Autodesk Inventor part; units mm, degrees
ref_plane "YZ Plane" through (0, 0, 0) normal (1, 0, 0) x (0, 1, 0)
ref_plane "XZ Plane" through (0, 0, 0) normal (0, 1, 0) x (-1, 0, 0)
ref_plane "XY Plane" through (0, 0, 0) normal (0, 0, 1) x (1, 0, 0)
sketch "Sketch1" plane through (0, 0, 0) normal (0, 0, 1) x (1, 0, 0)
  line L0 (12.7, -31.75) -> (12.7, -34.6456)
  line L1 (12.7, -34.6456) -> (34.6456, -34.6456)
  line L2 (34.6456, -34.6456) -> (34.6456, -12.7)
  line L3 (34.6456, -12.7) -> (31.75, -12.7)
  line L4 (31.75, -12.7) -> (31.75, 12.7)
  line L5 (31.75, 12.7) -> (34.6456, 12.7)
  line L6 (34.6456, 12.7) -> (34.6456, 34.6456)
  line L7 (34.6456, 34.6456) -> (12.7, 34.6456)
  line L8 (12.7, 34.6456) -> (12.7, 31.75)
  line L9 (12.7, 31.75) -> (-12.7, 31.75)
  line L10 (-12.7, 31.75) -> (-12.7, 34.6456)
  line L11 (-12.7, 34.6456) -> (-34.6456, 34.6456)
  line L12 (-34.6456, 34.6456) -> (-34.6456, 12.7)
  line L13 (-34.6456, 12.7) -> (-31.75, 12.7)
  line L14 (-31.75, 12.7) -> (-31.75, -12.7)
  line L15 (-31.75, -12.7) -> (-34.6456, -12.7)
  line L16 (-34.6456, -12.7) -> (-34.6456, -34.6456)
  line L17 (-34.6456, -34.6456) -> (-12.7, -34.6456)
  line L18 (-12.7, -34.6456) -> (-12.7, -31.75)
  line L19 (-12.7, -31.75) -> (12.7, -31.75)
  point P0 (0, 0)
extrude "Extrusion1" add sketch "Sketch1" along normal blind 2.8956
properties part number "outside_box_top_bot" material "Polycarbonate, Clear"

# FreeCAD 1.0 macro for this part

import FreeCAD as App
import Part
import Sketcher

V = App.Vector
Q = App.Units.Quantity


def add_polygon(sketch, points):
    """Adds a closed chain of lines whose ends are joined by coincident constraints."""
    first, n = sketch.GeometryCount, len(points)
    for a, b in zip(points, points[1:] + points[:1]):
        sketch.addGeometry(Part.LineSegment(App.Vector(*a, 0), App.Vector(*b, 0)), False)
    for i in range(n):
        sketch.addConstraint(Sketcher.Constraint("Coincident", first + i, 2, first + (i + 1) % n, 1))

doc = App.newDocument("Part")
body = doc.addObject("PartDesign::Body", "Body")

# Sketch on XY plane
sketch1 = doc.addObject("Sketcher::SketchObject", "Sketch")
body.addObject(sketch1)
sketch1.AttachmentSupport = (doc.XY_Plane, [""])
sketch1.MapMode = "FlatFace"
add_polygon(sketch1, [(-12.7, -31.75), (12.7, -31.75), (12.7, -34.6456), (34.6456, -34.6456), (34.6456, -12.7), (31.75, -12.7), (31.75, 12.7), (34.6456, 12.7), (34.6456, 34.6456), (12.7, 34.6456), (12.7, 31.75), (-12.7, 31.75), (-12.7, 34.6456), (-34.6456, 34.6456), (-34.6456, 12.7), (-31.75, 12.7), (-31.75, -12.7), (-34.6456, -12.7), (-34.6456, -34.6456), (-12.7, -34.6456)])  # lines 0-19
sketch1.addConstraint([
    Sketcher.Constraint("Horizontal", 0),
    Sketcher.Constraint("Vertical", 1),
    Sketcher.Constraint("Horizontal", 2),
    Sketcher.Constraint("Vertical", 3),
    Sketcher.Constraint("Horizontal", 4),
    Sketcher.Constraint("Vertical", 5),
    Sketcher.Constraint("Horizontal", 6),
    Sketcher.Constraint("Vertical", 7),
    Sketcher.Constraint("Horizontal", 8),
    Sketcher.Constraint("Vertical", 9),
    Sketcher.Constraint("Horizontal", 10),
    Sketcher.Constraint("Vertical", 11),
    Sketcher.Constraint("Horizontal", 12),
    Sketcher.Constraint("Vertical", 13),
    Sketcher.Constraint("Horizontal", 14),
    Sketcher.Constraint("Vertical", 15),
    Sketcher.Constraint("Horizontal", 16),
    Sketcher.Constraint("Vertical", 17),
    Sketcher.Constraint("Horizontal", 18),
    Sketcher.Constraint("Vertical", 19),
    Sketcher.Constraint("Symmetric", 0, 2, 10, 2, -1, 1),
    Sketcher.Constraint("Symmetric", 2, 2, 12, 2, -1, 1),
    Sketcher.Constraint("Symmetric", 4, 2, 14, 2, -1, 1),
    Sketcher.Constraint("Symmetric", 6, 2, 16, 2, -1, 1),
    Sketcher.Constraint("Symmetric", 8, 2, 18, 2, -1, 1),
    Sketcher.Constraint("Symmetric", 8, 2, 11, 2, -2),
    Sketcher.Constraint("Symmetric", 6, 2, 13, 2, -2),
    Sketcher.Constraint("Equal", 16, 1),
    Sketcher.Constraint("Equal", 18, 3),
    Sketcher.Constraint("Equal", 10, 5),
    Sketcher.Constraint("DistanceX", 0, 1, 0, 2, Q("1 in")),
    Sketcher.Constraint("DistanceX", 2, 1, 2, 2, Q("0.864 in")),
    Sketcher.Constraint("DistanceX", 4, 2, 4, 1, Q("0.114 in")),
])
pad1 = doc.addObject("PartDesign::Pad", "Pad")
body.addObject(pad1)
pad1.Profile = sketch1
pad1.Length = Q("0.114 in")

doc.recompute()
